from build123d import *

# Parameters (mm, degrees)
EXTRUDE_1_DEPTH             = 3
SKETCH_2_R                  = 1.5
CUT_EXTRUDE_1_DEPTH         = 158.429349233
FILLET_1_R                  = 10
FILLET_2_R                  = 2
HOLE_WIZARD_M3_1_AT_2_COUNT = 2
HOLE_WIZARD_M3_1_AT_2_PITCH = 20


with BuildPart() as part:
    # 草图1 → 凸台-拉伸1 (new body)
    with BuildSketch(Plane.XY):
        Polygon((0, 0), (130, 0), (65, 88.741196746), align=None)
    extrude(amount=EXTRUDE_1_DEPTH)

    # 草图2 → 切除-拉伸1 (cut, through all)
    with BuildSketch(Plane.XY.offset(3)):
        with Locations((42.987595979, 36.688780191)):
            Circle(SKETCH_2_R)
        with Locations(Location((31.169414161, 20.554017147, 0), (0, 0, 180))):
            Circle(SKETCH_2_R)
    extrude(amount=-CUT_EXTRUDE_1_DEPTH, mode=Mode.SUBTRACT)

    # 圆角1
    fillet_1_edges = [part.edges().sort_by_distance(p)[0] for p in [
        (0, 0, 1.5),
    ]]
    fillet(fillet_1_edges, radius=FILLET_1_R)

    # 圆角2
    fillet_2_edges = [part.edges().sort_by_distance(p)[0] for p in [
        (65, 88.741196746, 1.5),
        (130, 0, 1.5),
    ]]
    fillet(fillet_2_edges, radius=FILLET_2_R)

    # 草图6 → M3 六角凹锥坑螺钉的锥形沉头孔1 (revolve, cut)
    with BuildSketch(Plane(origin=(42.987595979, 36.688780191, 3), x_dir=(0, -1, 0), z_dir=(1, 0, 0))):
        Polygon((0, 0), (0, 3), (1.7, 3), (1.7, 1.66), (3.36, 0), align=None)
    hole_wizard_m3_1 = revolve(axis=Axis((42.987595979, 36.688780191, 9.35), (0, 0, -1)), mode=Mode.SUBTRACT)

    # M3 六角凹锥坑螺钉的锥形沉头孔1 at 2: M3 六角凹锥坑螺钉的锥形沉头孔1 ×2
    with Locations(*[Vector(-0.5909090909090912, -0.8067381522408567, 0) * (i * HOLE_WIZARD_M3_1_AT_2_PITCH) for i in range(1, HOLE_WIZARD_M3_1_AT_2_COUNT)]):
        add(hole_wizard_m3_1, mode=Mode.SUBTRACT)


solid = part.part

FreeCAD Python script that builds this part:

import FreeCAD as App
import Part
import Sketcher
Q = App.Units.Quantity


def edges_at(feature, points):
    """Names of the edges that pass closest to the given points."""
    edges = feature.Shape.Edges
    near = lambda p: min(range(len(edges)), key=lambda i: edges[i].distToShape(Part.Vertex(*p))[0])
    return sorted({f"Edge{near(p) + 1}" for p in points})

doc = App.newDocument("Part")
body = doc.addObject("PartDesign::Body", "Body")

# Sketch on XY plane
sketch1 = doc.addObject("Sketcher::SketchObject", "Sketch")
body.addObject(sketch1)
sketch1.AttachmentSupport = (doc.XY_Plane, [""])
sketch1.MapMode = "FlatFace"
sketch1.addGeometry(Part.LineSegment(App.Vector(0, 0, 0), App.Vector(130, 0, 0)), False)
sketch1.addGeometry(Part.LineSegment(App.Vector(130, 0, 0), App.Vector(65, 88.741197, 0)), False)
sketch1.addGeometry(Part.LineSegment(App.Vector(65, 88.741197, 0), App.Vector(0, 0, 0)), False)
sketch1.addConstraint(Sketcher.Constraint("Coincident", 0, 2, 1, 1))
sketch1.addConstraint(Sketcher.Constraint("Coincident", 1, 2, 2, 1))
sketch1.addConstraint(Sketcher.Constraint("Coincident", 2, 2, 0, 1))
sketch1.addConstraint(Sketcher.Constraint("Horizontal", 0))
sketch1.addConstraint(Sketcher.Constraint("Coincident", 2, 2, -1, 1))
sketch1.addConstraint(Sketcher.Constraint("Equal", 1, 2))
sketch1.addConstraint(Sketcher.Constraint("DistanceX", 0, 1, 0, 2, 130.0))
sketch1.addConstraint(Sketcher.Constraint("Distance", 1, 110.0))
pad1 = doc.addObject("PartDesign::Pad", "Pad")
body.addObject(pad1)
pad1.Profile = sketch1
pad1.Length = 3

# Sketch on XY plane
sketch2 = doc.addObject("Sketcher::SketchObject", "Sketch001")
body.addObject(sketch2)
sketch2.AttachmentSupport = (doc.XY_Plane, [""])
sketch2.MapMode = "FlatFace"
sketch2.AttachmentOffset = App.Placement(App.Vector(0, 0, 3), App.Rotation())
sketch2.addGeometry(Part.Circle(App.Vector(42.987596, 36.68878, 0), App.Vector(0, 0, 1), 1.5), False)
sketch2.addGeometry(Part.Circle(App.Vector(31.169414, 20.554017, 0), App.Vector(0, 0, 1), 1.5), False)
sketch2.addConstraint(Sketcher.Constraint("Equal", 0, 1))
sketch2.addConstraint(Sketcher.Constraint("Diameter", 0, 3.0))
sketch2.addConstraint(Sketcher.Constraint("DistanceY", -1, 1, 0, 3, 36.68878))
sketch2.addConstraint(Sketcher.Constraint("DistanceX", 1, 3, 0, 3, 11.818182))
sketch2.addConstraint(Sketcher.Constraint("DistanceX", -1, 1, 0, 3, 42.987596))
sketch2.addConstraint(Sketcher.Constraint("DistanceY", -1, 1, 1, 3, 20.554017))
pocket1 = doc.addObject("PartDesign::Pocket", "Pocket")
body.addObject(pocket1)
pocket1.Profile = sketch2
pocket1.Type = "ThroughAll"
doc.recompute()

fillet = doc.addObject("PartDesign::Fillet", "Fillet")
body.addObject(fillet)
fillet.Base = (pocket1, edges_at(pocket1, [(0, 0, 1.5)]))
fillet.Radius = 10
doc.recompute()

fillet2 = doc.addObject("PartDesign::Fillet", "Fillet001")
body.addObject(fillet2)
fillet2.Base = (fillet, edges_at(fillet, [(65, 88.741, 1.5), (130, 0, 1.5)]))
fillet2.Radius = 2

# Sketch on YZ plane
sketch3 = doc.addObject("Sketcher::SketchObject", "Sketch002")
body.addObject(sketch3)
sketch3.AttachmentSupport = (doc.YZ_Plane, [""])
sketch3.MapMode = "FlatFace"
sketch3.AttachmentOffset = App.Placement(App.Vector(0, 0, 42.987596), App.Rotation())
sketch3.addGeometry(Part.LineSegment(App.Vector(36.68878, 0, 0), App.Vector(36.68878, 3, 0)), False)
sketch3.addGeometry(Part.LineSegment(App.Vector(36.68878, 3, 0), App.Vector(33.32878, 3, 0)), False)
sketch3.addGeometry(Part.LineSegment(App.Vector(33.32878, 3, 0), App.Vector(34.98878, 1.34, 0)), False)
sketch3.addGeometry(Part.LineSegment(App.Vector(34.98878, 1.34, 0), App.Vector(34.98878, 0, 0)), False)
sketch3.addGeometry(Part.LineSegment(App.Vector(34.98878, 0, 0), App.Vector(36.68878, 0, 0)), False)
sketch3.addGeometry(Part.LineSegment(App.Vector(36.68878, 3, 0), App.Vector(36.68878, 0, 0)), True)  # axis
sketch3.addConstraint(Sketcher.Constraint("Coincident", 0, 2, 1, 1))
sketch3.addConstraint(Sketcher.Constraint("Coincident", 1, 2, 2, 1))
sketch3.addConstraint(Sketcher.Constraint("Coincident", 2, 2, 3, 1))
sketch3.addConstraint(Sketcher.Constraint("Coincident", 3, 2, 4, 1))
sketch3.addConstraint(Sketcher.Constraint("Coincident", 4, 2, 0, 1))
sketch3.addConstraint(Sketcher.Constraint("Vertical", 0))
sketch3.addConstraint(Sketcher.Constraint("Horizontal", 1))
sketch3.addConstraint(Sketcher.Constraint("Vertical", 3))
sketch3.addConstraint(Sketcher.Constraint("Horizontal", 4))
sketch3.addConstraint(Sketcher.Constraint("Vertical", 5))
sketch3.addConstraint(Sketcher.Constraint("Coincident", 5, 1, 0, 2))
sketch3.addConstraint(Sketcher.Constraint("PointOnObject", 3, 2, -1))
sketch3.addConstraint(Sketcher.Constraint("PointOnObject", 5, 2, -1))
sketch3.addConstraint(Sketcher.Constraint("DistanceY", 0, 1, 0, 2, 3.0))
sketch3.addConstraint(Sketcher.Constraint("Angle", 2, Q("-45 deg")))
sketch3.addConstraint(Sketcher.Constraint("DistanceX", 4, 1, 4, 2, 1.7))
sketch3.addConstraint(Sketcher.Constraint("DistanceX", 1, 2, 1, 1, 3.36))
sketch3.addConstraint(Sketcher.Constraint("DistanceX", -1, 1, 0, 2, 36.68878))
groove = doc.addObject("PartDesign::Groove", "Groove")
body.addObject(groove)
groove.Profile = sketch3
groove.ReferenceAxis = (sketch3, ["Axis0"])
groove.Angle = 360
doc.recompute()

datumline = doc.addObject("PartDesign::Line", "DatumLine")
body.addObject(datumline)
datumline.Placement = App.Placement(App.Vector(0, 0, 0), App.Rotation(App.Vector(0, 0, 1), App.Vector(-0.590909091, -0.806738152, 0)))
linearpattern = doc.addObject("PartDesign::LinearPattern", "LinearPattern")
body.addObject(linearpattern)
linearpattern.Originals = [groove]
linearpattern.Direction = (datumline, [""])
linearpattern.Mode = "offset"
linearpattern.Offset = 20
linearpattern.Occurrences = 2
body.Tip = linearpattern

doc.recompute()
